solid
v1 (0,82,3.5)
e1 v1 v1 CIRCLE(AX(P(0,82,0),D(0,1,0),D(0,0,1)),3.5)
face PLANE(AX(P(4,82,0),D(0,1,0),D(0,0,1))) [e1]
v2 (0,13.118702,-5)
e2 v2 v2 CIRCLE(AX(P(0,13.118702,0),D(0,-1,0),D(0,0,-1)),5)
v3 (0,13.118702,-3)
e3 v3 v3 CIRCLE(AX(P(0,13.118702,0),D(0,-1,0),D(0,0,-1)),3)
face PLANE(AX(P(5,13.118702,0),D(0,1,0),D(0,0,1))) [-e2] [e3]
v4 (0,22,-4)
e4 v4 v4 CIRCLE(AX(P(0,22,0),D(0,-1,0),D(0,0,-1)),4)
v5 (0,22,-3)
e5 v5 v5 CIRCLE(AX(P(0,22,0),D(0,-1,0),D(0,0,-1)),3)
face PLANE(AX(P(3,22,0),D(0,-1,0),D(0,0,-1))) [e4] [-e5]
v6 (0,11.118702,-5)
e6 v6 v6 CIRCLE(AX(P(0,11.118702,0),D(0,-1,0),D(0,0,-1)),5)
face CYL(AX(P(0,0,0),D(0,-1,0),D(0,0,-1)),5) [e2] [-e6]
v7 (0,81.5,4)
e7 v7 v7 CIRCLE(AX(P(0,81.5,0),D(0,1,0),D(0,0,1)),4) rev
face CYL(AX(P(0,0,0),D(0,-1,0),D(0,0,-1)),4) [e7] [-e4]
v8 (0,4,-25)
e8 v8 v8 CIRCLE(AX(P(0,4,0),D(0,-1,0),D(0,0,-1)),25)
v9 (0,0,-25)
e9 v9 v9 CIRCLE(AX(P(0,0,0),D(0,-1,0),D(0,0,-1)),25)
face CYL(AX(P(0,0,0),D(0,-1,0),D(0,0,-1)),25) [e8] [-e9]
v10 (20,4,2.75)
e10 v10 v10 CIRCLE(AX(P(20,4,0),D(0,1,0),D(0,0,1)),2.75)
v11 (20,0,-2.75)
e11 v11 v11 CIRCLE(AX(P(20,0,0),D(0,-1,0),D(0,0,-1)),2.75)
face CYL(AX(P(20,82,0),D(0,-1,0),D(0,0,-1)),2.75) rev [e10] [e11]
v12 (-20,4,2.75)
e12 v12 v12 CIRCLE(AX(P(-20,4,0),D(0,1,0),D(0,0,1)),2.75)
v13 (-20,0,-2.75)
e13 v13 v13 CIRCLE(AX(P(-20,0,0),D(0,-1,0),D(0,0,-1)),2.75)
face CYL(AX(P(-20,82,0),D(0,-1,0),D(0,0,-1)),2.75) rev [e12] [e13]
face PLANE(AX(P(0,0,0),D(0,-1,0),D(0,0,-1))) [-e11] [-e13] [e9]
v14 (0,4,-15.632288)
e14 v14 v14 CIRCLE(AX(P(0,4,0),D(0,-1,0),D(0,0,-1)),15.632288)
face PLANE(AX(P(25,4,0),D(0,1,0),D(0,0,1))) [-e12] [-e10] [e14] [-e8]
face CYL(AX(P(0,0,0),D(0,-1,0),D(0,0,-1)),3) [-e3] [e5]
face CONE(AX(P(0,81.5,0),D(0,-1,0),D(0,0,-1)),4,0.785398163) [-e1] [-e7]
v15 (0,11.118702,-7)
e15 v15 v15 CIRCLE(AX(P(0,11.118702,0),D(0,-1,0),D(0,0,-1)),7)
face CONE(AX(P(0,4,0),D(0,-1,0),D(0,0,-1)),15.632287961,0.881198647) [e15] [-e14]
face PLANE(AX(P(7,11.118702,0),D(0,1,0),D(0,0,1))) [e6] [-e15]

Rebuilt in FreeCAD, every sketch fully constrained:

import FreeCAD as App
import Part
import Sketcher

V = App.Vector


def edges_at(feature, points):
    """Names of the edges that pass closest to the given points."""
    edges = feature.Shape.Edges
    near = lambda p: min(range(len(edges)), key=lambda i: edges[i].distToShape(Part.Vertex(*p))[0])
    return sorted({f"Edge{near(p) + 1}" for p in points})


def add_polygon(sketch, points):
    """Adds a closed chain of lines whose ends are joined by coincident constraints."""
    first, n = sketch.GeometryCount, len(points)
    for a, b in zip(points, points[1:] + points[:1]):
        sketch.addGeometry(Part.LineSegment(App.Vector(*a, 0), App.Vector(*b, 0)), False)
    for i in range(n):
        sketch.addConstraint(Sketcher.Constraint("Coincident", first + i, 2, first + (i + 1) % n, 1))

doc = App.newDocument("Part")
params = doc.addObject("Spreadsheet::Sheet", "Params")
for row, (alias, value) in enumerate([
    ("sketch1_width", "25 mm"),
    ("sketch1_width2", "2 mm"),
    ("sketch1_width3", "1 mm"),
    ("sketch1_width4", "4 mm"),
    ("sketch1_height", "60 mm"),
    ("revolution_angle", "360 deg"),
    ("chamfer_size", "0.5 mm"),
    ("sketch2_diameter", "5.5 mm"),
], start=1):
    params.set(f"A{row}", alias)
    params.set(f"B{row}", "=" + value)
    params.setAlias(f"B{row}", alias)

body = doc.addObject("PartDesign::Body", "Body")

# Sketch on XY plane
sketch1 = body.newObject("Sketcher::SketchObject", "Sketch")
sketch1.AttachmentSupport = (doc.getObject("XY_Plane"), [""])
sketch1.MapMode = "FlatFace"
add_polygon(sketch1, [(0, 0), (25, 0), (25, 4), (15.6, 4), (7, 11.1), (5, 11.1), (5, 13.1), (3, 13.1), (3, 22), (4, 22), (4, 82), (0, 82)])  # lines 0-11
sketch1.addConstraint([
    Sketcher.Constraint("Horizontal", 0),
    Sketcher.Constraint("Vertical", 1),
    Sketcher.Constraint("Horizontal", 2),
    Sketcher.Constraint("Horizontal", 4),
    Sketcher.Constraint("Vertical", 5),
    Sketcher.Constraint("Horizontal", 6),
    Sketcher.Constraint("Vertical", 7),
    Sketcher.Constraint("Horizontal", 8),
    Sketcher.Constraint("Vertical", 9),
    Sketcher.Constraint("Horizontal", 10),
    Sketcher.Constraint("Vertical", 11),
    Sketcher.Constraint("Coincident", 11, 2, -1, 1),
    Sketcher.Constraint("Equal", 4, 6),
    Sketcher.Constraint("Equal", 10, 1),
    Sketcher.Constraint("Equal", 6, 5),
    Sketcher.Constraint("DistanceX", 0, 1, 0, 2, 25.0),
    Sketcher.Constraint("DistanceX", 4, 2, 4, 1, 2.0),
    Sketcher.Constraint("DistanceX", 8, 1, 8, 2, 1.0),
    Sketcher.Constraint("DistanceX", 10, 2, 10, 1, 4.0),
    Sketcher.Constraint("DistanceY", 9, 1, 9, 2, 60.0),
    Sketcher.Constraint("DistanceY", 11, 2, 11, 1, 82.0),
    Sketcher.Constraint("DistanceX", 2, 2, 2, 1, 9.367712),
    Sketcher.Constraint("DistanceY", 7, 1, 7, 2, 8.881298),
])
sketch1.setExpression("Constraints[27]", "Params.sketch1_width")
sketch1.setExpression("Constraints[28]", "Params.sketch1_width2")
sketch1.setExpression("Constraints[29]", "Params.sketch1_width3")
sketch1.setExpression("Constraints[30]", "Params.sketch1_width4")
sketch1.setExpression("Constraints[31]", "Params.sketch1_height")
revolution = body.newObject("PartDesign::Revolution", "Revolution")
revolution.Profile = sketch1
revolution.ReferenceAxis = (sketch1, ["V_Axis"])
revolution.setExpression("Angle", "Params.revolution_angle")
doc.recompute()

chamfer = body.newObject("PartDesign::Chamfer", "Chamfer")
chamfer.Base = (revolution, edges_at(revolution, [(0, 82, 4)]))
chamfer.setExpression("Size", "Params.chamfer_size")

# Sketch on XZ plane
sketch2 = body.newObject("Sketcher::SketchObject", "Sketch001")
sketch2.AttachmentSupport = (doc.getObject("XZ_Plane"), [""])
sketch2.MapMode = "FlatFace"
sketch2.addGeometry([
    Part.Circle(V(-20, 0, 0), V(0, 0, 1), 2.8),
    Part.Circle(V(20, 0, 0), V(0, 0, 1), 2.8),
], False)
sketch2.addConstraint([
    Sketcher.Constraint("Equal", 0, 1),
    Sketcher.Constraint("Symmetric", 0, 3, 1, 3, -1, 1),
    Sketcher.Constraint("PointOnObject", 0, 3, -1),
    Sketcher.Constraint("Diameter", 0, 5.5),
    Sketcher.Constraint("DistanceX", 0, 3, -1, 1, 20.0),
])
sketch2.setExpression("Constraints[3]", "Params.sketch2_diameter")
pocket1 = body.newObject("PartDesign::Pocket", "Pocket")
pocket1.Profile = sketch2
pocket1.Type = "ThroughAll"

doc.recompute()
